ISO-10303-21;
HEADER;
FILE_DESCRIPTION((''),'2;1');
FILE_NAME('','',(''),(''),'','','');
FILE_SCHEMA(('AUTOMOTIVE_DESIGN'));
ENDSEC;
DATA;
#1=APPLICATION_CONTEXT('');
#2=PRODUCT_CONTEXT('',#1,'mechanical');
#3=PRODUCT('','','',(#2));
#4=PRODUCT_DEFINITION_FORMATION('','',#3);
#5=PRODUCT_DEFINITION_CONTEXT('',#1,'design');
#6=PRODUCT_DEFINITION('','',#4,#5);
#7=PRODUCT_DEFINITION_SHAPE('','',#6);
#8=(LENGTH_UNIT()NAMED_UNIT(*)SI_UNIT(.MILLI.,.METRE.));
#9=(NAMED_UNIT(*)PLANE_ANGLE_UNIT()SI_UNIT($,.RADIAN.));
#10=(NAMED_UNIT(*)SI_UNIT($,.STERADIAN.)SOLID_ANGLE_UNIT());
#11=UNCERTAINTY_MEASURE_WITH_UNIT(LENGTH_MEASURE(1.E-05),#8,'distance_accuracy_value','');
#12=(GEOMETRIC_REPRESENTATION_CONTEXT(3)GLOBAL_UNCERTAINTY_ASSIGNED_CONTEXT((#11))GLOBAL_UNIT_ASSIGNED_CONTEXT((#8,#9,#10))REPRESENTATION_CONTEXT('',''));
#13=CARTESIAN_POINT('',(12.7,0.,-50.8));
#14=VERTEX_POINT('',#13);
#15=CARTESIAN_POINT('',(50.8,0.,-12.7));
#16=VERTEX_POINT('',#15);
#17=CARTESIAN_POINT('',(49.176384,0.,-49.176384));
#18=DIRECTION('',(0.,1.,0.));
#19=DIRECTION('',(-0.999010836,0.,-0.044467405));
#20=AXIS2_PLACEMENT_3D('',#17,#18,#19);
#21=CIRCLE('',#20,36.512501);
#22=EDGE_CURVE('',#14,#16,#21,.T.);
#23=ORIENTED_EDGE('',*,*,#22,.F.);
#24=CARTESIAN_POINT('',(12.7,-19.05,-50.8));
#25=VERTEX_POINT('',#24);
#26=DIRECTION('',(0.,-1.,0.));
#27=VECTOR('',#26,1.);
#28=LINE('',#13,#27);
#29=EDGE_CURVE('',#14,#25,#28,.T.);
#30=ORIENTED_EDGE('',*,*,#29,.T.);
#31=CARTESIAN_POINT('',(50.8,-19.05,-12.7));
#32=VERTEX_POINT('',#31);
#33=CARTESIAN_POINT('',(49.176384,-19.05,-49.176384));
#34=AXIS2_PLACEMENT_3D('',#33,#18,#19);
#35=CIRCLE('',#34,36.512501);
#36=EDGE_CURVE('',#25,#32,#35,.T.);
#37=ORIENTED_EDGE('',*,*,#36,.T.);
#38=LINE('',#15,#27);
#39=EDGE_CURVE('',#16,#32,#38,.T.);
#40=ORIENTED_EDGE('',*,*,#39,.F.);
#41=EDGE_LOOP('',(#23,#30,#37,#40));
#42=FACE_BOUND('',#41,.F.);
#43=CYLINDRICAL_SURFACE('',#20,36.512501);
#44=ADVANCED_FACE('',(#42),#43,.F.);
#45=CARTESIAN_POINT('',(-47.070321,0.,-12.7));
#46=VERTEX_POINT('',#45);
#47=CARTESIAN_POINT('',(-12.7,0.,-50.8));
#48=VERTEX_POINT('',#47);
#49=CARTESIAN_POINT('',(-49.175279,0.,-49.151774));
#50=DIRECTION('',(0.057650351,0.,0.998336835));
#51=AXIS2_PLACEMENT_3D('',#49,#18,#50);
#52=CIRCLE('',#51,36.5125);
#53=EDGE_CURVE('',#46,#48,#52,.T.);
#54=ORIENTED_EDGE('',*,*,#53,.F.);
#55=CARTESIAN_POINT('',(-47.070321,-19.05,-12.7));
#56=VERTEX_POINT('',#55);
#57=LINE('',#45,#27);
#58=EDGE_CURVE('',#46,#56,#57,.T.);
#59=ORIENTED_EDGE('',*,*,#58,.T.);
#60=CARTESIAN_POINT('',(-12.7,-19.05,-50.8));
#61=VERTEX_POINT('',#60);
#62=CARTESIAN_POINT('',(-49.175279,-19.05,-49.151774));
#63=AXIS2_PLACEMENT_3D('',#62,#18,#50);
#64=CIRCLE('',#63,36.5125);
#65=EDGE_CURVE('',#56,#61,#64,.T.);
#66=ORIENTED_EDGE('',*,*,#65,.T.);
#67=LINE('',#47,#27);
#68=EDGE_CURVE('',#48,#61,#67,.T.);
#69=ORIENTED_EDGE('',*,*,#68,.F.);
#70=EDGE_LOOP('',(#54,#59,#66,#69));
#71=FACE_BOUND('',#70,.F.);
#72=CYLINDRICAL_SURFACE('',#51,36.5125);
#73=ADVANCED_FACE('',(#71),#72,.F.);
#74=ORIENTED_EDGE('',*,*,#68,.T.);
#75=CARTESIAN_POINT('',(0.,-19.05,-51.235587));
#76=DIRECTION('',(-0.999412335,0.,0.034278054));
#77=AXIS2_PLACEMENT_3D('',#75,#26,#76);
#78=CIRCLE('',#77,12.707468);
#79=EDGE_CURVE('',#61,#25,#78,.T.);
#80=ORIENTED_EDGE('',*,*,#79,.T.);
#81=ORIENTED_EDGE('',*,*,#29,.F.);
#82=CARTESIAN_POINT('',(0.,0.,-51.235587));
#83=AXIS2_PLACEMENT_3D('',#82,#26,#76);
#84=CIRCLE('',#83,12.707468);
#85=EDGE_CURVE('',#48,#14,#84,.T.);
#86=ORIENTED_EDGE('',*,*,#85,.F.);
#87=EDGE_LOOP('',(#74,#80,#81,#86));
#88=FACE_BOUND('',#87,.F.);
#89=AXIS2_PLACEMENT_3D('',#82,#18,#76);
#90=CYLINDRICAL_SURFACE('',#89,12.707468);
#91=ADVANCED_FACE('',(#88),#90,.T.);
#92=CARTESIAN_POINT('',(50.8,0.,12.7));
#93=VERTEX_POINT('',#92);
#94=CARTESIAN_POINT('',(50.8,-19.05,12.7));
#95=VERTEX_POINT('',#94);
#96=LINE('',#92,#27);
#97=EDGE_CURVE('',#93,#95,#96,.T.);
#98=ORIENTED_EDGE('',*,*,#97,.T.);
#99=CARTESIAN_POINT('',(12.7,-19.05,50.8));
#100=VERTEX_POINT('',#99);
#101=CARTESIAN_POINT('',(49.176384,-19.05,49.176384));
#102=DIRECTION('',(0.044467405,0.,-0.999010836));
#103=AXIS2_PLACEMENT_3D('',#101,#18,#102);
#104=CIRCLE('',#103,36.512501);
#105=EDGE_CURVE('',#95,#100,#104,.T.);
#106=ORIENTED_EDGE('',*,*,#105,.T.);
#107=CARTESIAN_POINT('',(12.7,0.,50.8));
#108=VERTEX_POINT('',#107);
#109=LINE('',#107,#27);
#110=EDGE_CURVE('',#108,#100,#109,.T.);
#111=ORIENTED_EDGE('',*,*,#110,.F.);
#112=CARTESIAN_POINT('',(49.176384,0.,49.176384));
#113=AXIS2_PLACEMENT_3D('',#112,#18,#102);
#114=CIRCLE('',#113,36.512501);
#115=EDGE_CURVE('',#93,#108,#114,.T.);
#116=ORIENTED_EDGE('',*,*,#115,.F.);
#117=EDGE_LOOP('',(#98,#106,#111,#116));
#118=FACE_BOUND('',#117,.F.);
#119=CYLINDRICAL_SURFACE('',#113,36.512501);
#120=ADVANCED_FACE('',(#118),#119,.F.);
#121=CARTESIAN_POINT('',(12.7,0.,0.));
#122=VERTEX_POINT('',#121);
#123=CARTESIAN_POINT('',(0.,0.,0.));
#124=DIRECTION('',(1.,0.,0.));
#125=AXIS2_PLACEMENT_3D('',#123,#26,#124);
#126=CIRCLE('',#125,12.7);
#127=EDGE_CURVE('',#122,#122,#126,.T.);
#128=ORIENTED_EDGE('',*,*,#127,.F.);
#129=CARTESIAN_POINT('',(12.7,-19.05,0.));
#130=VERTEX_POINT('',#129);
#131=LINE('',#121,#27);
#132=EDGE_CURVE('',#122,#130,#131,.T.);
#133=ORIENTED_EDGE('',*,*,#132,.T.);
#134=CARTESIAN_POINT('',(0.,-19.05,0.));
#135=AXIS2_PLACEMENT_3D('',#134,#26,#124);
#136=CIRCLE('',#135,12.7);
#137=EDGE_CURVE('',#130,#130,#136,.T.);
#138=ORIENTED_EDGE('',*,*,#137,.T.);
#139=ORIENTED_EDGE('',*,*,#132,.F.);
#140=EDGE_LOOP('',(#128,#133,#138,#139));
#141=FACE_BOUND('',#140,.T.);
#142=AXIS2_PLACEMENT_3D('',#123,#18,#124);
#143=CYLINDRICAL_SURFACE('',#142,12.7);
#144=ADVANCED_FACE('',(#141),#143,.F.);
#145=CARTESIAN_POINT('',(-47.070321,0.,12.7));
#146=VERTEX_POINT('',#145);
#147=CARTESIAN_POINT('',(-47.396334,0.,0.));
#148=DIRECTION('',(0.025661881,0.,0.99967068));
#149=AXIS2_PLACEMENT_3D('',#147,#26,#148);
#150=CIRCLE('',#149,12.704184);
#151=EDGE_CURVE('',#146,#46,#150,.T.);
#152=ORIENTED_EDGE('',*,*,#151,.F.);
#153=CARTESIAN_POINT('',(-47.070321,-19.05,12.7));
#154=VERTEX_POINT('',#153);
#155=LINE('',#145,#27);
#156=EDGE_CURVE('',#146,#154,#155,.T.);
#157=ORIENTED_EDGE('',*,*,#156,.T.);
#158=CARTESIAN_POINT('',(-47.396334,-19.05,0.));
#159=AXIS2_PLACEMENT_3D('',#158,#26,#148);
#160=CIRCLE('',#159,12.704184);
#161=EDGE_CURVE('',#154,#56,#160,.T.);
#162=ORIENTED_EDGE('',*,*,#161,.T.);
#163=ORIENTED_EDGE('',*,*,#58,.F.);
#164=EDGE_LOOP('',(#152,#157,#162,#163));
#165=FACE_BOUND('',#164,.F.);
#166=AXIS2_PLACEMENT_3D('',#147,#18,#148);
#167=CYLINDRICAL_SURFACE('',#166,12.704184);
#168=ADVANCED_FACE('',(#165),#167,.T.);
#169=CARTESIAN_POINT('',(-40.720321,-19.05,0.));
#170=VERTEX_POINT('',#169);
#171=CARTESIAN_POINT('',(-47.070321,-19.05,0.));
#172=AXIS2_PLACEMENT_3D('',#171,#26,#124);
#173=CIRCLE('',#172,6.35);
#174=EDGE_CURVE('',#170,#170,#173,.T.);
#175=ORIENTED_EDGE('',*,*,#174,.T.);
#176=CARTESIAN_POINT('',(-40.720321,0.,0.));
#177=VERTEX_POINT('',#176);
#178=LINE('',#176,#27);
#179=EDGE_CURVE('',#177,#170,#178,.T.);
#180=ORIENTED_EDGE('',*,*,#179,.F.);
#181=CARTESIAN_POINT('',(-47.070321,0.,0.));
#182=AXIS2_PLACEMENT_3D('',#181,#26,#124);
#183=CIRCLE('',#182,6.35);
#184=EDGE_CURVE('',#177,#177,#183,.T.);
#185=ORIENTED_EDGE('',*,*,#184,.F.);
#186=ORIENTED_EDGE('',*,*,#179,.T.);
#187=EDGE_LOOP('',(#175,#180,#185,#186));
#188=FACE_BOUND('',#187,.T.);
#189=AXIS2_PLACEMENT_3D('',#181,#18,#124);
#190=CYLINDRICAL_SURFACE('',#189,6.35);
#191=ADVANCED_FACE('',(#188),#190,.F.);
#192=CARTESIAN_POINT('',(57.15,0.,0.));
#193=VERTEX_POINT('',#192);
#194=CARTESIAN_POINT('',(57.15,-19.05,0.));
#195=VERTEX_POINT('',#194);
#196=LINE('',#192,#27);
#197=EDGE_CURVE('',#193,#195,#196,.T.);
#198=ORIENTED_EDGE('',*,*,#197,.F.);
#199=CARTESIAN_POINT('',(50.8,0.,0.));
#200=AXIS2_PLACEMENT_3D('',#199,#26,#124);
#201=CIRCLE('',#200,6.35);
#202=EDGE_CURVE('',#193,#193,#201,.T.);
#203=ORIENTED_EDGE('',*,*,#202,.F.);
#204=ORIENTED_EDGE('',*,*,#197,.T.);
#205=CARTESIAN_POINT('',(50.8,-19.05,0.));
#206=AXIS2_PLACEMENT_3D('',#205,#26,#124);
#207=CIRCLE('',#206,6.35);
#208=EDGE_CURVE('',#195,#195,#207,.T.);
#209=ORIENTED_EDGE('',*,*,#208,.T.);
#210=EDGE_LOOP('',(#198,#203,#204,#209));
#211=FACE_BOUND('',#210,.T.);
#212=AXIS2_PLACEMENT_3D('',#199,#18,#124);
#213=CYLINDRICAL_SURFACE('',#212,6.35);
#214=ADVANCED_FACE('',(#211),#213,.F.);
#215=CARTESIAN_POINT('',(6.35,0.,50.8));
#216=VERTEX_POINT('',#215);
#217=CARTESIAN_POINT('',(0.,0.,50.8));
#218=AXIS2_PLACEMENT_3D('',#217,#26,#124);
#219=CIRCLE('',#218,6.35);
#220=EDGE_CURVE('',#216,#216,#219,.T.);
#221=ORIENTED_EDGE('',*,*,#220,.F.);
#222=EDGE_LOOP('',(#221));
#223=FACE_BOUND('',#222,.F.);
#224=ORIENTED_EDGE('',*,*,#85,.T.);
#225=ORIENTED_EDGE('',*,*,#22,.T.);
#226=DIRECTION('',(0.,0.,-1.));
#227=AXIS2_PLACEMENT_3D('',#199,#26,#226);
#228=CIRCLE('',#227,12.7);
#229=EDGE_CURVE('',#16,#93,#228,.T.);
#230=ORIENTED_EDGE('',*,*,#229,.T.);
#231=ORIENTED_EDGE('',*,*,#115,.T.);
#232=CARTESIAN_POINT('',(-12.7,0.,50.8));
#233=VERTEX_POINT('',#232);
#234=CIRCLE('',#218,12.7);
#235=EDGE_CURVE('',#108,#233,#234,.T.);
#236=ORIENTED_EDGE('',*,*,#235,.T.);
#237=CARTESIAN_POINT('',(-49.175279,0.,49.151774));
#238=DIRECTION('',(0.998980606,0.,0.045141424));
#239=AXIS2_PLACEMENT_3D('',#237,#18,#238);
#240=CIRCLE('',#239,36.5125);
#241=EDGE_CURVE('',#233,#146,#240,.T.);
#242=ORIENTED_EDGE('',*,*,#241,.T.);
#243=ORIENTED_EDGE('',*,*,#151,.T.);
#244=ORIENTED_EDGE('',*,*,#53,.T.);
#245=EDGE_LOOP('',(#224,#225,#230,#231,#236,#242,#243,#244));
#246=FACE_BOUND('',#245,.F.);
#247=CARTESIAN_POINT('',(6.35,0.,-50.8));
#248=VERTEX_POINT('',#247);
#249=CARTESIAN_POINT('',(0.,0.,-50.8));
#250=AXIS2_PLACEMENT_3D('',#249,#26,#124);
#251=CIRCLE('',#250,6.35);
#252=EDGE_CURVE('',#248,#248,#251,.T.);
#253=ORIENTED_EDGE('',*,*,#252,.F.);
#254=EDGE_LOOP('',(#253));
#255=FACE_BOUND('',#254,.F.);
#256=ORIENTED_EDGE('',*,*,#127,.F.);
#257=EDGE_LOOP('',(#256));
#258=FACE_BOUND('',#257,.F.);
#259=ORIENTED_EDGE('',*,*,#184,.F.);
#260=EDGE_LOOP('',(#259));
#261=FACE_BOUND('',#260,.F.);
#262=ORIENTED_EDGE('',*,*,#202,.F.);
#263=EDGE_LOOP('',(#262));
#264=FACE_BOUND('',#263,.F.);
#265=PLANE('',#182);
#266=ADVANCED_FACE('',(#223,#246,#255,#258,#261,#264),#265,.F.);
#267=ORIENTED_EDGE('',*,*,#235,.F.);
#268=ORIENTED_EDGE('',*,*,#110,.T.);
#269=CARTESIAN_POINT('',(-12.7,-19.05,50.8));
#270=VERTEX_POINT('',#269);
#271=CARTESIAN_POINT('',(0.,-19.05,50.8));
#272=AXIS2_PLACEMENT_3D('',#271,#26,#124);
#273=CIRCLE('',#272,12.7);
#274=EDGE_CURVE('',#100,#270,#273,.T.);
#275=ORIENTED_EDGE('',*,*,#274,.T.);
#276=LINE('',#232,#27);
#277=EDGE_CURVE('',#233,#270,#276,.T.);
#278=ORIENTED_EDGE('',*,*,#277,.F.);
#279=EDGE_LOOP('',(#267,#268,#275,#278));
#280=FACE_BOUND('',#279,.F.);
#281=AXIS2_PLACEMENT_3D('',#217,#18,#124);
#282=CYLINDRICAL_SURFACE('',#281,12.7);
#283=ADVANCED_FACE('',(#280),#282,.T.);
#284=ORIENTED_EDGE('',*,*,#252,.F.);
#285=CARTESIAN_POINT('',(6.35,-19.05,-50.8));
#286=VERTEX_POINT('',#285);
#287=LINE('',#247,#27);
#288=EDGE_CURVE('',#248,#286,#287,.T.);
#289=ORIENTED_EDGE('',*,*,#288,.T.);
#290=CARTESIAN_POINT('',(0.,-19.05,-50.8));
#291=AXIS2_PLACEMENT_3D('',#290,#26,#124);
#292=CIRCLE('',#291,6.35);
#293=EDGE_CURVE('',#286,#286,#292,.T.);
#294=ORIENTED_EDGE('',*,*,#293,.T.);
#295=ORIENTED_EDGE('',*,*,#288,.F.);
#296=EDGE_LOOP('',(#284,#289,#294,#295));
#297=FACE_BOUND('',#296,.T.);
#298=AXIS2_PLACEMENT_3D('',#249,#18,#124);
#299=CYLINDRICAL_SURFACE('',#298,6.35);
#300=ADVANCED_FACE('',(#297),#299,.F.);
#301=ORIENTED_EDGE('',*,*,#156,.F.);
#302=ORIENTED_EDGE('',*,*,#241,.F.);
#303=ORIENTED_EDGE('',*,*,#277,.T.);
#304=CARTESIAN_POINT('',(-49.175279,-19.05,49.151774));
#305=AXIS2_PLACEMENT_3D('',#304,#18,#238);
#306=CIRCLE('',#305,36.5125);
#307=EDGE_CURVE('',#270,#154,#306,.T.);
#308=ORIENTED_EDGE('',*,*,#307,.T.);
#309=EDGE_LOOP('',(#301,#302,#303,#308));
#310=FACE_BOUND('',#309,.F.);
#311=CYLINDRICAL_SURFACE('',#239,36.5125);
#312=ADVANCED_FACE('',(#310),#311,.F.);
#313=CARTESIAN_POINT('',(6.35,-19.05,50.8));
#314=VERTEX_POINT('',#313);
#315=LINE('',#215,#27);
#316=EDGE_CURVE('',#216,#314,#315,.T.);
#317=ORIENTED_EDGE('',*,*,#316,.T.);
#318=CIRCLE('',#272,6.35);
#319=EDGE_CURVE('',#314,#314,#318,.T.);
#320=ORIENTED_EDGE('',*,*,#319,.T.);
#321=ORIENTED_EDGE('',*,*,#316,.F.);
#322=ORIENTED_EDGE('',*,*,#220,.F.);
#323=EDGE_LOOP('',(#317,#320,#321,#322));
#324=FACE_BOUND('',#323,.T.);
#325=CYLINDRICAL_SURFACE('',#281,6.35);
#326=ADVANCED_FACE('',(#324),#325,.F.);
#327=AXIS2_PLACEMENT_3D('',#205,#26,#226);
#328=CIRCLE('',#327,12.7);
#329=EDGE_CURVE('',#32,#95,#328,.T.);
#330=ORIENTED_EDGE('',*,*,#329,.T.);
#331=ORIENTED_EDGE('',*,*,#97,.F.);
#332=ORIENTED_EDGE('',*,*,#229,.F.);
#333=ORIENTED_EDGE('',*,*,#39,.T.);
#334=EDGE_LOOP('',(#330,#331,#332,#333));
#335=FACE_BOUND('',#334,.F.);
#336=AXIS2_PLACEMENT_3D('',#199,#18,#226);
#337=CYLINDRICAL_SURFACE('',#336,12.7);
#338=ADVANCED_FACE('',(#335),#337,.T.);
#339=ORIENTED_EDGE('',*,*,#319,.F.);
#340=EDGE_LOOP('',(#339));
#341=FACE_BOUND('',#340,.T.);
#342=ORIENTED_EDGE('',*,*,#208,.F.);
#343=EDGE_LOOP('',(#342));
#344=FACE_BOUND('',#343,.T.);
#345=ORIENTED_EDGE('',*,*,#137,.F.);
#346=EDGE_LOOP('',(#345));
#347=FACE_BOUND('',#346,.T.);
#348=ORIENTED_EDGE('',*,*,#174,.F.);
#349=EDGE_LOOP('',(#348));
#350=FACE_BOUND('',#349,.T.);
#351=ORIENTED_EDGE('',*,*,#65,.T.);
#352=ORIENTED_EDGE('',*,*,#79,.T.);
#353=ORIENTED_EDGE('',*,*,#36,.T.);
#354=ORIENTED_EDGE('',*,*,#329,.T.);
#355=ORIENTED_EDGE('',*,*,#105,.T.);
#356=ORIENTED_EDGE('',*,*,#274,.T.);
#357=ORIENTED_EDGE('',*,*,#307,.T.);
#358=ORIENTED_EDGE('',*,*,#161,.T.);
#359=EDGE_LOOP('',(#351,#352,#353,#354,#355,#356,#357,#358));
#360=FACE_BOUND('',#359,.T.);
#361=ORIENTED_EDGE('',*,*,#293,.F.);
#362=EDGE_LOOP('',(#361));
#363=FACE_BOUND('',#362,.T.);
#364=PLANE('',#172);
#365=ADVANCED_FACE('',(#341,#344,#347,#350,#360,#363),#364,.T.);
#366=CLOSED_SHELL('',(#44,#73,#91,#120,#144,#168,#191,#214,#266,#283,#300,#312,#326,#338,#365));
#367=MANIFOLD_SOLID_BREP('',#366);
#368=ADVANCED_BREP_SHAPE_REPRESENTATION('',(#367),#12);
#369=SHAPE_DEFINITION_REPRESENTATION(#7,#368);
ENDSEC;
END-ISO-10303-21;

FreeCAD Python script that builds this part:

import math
import FreeCAD as App
import Part
import Sketcher
from FreeCAD import Vector
Q = App.Units.Quantity

doc = App.newDocument("Part")
body = doc.addObject("PartDesign::Body", "Body")

# Sketch on XZ plane
sketch1 = body.newObject("Sketcher::SketchObject", "Sketch")
sketch1.AttachmentSupport = (doc.getObject("XZ_Plane"), [""])
sketch1.MapMode = "FlatFace"
sketch1.addGeometry([
    Part.ArcOfCircle(Part.Circle(Vector(49, 49, 0), Vector(0, 0, 1), 37), math.radians(177), math.radians(273)),  # 0
    Part.ArcOfCircle(Part.Circle(Vector(0, 51, 0), Vector(0, 0, 1), 13), math.radians(0), math.radians(180)),  # 1
    Part.ArcOfCircle(Part.Circle(Vector(-49, 49, 0), Vector(0, 0, 1), 37), math.radians(-87), math.radians(3)),  # 2
    Part.ArcOfCircle(Part.Circle(Vector(-47, 0, 0), Vector(0, 0, 1), 13), math.radians(89), math.radians(271)),  # 3
    Part.ArcOfCircle(Part.Circle(Vector(-49, -49, 0), Vector(0, 0, 1), 37), math.radians(-3), math.radians(87)),  # 4
    Part.ArcOfCircle(Part.Circle(Vector(0, -51, 0), Vector(0, 0, 1), 13), math.radians(178), math.radians(362)),  # 5
    Part.ArcOfCircle(Part.Circle(Vector(49, -49, 0), Vector(0, 0, 1), 37), math.radians(87), math.radians(183)),  # 6
    Part.ArcOfCircle(Part.Circle(Vector(51, 0, 0), Vector(0, 0, 1), 13), math.radians(-90), math.radians(90)),  # 7
    Part.Circle(Vector(0, -51, 0), Vector(0, 0, 1), 6),  # 8
    Part.Circle(Vector(-47, 0, 0), Vector(0, 0, 1), 6),  # 9
    Part.Circle(Vector(0, 0, 0), Vector(0, 0, 1), 13),  # 10
    Part.Circle(Vector(0, 51, 0), Vector(0, 0, 1), 6),  # 11
    Part.Circle(Vector(51, 0, 0), Vector(0, 0, 1), 6),  # 12
], False)
sketch1.addConstraint([
    Sketcher.Constraint("Coincident", 0, 1, 1, 1),
    Sketcher.Constraint("Coincident", 1, 2, 2, 2),
    Sketcher.Constraint("Coincident", 2, 1, 3, 1),
    Sketcher.Constraint("Coincident", 3, 2, 4, 2),
    Sketcher.Constraint("Coincident", 4, 1, 5, 1),
    Sketcher.Constraint("Coincident", 5, 2, 6, 2),
    Sketcher.Constraint("Coincident", 6, 1, 7, 1),
    Sketcher.Constraint("Coincident", 7, 2, 0, 2),
    Sketcher.Constraint("Coincident", 10, 3, -1, 1),
    Sketcher.Constraint("Coincident", 11, 3, 1, 3),
    Sketcher.Constraint("Coincident", 12, 3, 7, 3),
    Sketcher.Constraint("Equal", 0, 2),
    Sketcher.Constraint("Equal", 2, 4),
    Sketcher.Constraint("Equal", 4, 6),
    Sketcher.Constraint("Equal", 1, 7),
    Sketcher.Constraint("Equal", 8, 9),
    Sketcher.Constraint("Equal", 7, 10),
    Sketcher.Constraint("Equal", 9, 11),
    Sketcher.Constraint("Equal", 11, 12),
    Sketcher.Constraint("Symmetric", 1, 3, 8, 3, -1, 1),
    Sketcher.Constraint("Symmetric", 0, 1, 4, 1, -1, 1),
    Sketcher.Constraint("Symmetric", 1, 2, 5, 2, -1, 1),
    Sketcher.Constraint("Symmetric", 0, 1, 1, 2, -2),
    Sketcher.Constraint("Symmetric", 2, 1, 3, 2, -1),
    Sketcher.Constraint("Symmetric", 6, 1, 7, 2, -1),
    Sketcher.Constraint("PointOnObject", 9, 3, -1),
    Sketcher.Constraint("Horizontal", 11, 3, 0, 1),
    Sketcher.Constraint("Horizontal", 3, 2, 6, 1),
    Sketcher.Constraint("Vertical", 9, 3, 2, 1),
    Sketcher.Constraint("Vertical", 12, 3, 6, 1),
    Sketcher.Constraint("Diameter", 10, Q("1 in")),
    Sketcher.Constraint("Diameter", 8, Q("0.5 in")),
    Sketcher.Constraint("DistanceY", -1, 1, 1, 3, Q("2 in")),
    Sketcher.Constraint("DistanceX", -1, 1, 7, 3, Q("2 in")),
    Sketcher.Constraint("Radius", 0, Q("1.4375 in")),
    Sketcher.Constraint("Radius", 3, 12.704184),
    Sketcher.Constraint("Radius", 5, 12.707468),
    Sketcher.Constraint("DistanceX", 9, 3, -1, 1, 47.070321),
])
pad1 = body.newObject("PartDesign::Pad", "Pad")
pad1.Profile = sketch1
pad1.Length = Q("0.75 in")

doc.recompute()
